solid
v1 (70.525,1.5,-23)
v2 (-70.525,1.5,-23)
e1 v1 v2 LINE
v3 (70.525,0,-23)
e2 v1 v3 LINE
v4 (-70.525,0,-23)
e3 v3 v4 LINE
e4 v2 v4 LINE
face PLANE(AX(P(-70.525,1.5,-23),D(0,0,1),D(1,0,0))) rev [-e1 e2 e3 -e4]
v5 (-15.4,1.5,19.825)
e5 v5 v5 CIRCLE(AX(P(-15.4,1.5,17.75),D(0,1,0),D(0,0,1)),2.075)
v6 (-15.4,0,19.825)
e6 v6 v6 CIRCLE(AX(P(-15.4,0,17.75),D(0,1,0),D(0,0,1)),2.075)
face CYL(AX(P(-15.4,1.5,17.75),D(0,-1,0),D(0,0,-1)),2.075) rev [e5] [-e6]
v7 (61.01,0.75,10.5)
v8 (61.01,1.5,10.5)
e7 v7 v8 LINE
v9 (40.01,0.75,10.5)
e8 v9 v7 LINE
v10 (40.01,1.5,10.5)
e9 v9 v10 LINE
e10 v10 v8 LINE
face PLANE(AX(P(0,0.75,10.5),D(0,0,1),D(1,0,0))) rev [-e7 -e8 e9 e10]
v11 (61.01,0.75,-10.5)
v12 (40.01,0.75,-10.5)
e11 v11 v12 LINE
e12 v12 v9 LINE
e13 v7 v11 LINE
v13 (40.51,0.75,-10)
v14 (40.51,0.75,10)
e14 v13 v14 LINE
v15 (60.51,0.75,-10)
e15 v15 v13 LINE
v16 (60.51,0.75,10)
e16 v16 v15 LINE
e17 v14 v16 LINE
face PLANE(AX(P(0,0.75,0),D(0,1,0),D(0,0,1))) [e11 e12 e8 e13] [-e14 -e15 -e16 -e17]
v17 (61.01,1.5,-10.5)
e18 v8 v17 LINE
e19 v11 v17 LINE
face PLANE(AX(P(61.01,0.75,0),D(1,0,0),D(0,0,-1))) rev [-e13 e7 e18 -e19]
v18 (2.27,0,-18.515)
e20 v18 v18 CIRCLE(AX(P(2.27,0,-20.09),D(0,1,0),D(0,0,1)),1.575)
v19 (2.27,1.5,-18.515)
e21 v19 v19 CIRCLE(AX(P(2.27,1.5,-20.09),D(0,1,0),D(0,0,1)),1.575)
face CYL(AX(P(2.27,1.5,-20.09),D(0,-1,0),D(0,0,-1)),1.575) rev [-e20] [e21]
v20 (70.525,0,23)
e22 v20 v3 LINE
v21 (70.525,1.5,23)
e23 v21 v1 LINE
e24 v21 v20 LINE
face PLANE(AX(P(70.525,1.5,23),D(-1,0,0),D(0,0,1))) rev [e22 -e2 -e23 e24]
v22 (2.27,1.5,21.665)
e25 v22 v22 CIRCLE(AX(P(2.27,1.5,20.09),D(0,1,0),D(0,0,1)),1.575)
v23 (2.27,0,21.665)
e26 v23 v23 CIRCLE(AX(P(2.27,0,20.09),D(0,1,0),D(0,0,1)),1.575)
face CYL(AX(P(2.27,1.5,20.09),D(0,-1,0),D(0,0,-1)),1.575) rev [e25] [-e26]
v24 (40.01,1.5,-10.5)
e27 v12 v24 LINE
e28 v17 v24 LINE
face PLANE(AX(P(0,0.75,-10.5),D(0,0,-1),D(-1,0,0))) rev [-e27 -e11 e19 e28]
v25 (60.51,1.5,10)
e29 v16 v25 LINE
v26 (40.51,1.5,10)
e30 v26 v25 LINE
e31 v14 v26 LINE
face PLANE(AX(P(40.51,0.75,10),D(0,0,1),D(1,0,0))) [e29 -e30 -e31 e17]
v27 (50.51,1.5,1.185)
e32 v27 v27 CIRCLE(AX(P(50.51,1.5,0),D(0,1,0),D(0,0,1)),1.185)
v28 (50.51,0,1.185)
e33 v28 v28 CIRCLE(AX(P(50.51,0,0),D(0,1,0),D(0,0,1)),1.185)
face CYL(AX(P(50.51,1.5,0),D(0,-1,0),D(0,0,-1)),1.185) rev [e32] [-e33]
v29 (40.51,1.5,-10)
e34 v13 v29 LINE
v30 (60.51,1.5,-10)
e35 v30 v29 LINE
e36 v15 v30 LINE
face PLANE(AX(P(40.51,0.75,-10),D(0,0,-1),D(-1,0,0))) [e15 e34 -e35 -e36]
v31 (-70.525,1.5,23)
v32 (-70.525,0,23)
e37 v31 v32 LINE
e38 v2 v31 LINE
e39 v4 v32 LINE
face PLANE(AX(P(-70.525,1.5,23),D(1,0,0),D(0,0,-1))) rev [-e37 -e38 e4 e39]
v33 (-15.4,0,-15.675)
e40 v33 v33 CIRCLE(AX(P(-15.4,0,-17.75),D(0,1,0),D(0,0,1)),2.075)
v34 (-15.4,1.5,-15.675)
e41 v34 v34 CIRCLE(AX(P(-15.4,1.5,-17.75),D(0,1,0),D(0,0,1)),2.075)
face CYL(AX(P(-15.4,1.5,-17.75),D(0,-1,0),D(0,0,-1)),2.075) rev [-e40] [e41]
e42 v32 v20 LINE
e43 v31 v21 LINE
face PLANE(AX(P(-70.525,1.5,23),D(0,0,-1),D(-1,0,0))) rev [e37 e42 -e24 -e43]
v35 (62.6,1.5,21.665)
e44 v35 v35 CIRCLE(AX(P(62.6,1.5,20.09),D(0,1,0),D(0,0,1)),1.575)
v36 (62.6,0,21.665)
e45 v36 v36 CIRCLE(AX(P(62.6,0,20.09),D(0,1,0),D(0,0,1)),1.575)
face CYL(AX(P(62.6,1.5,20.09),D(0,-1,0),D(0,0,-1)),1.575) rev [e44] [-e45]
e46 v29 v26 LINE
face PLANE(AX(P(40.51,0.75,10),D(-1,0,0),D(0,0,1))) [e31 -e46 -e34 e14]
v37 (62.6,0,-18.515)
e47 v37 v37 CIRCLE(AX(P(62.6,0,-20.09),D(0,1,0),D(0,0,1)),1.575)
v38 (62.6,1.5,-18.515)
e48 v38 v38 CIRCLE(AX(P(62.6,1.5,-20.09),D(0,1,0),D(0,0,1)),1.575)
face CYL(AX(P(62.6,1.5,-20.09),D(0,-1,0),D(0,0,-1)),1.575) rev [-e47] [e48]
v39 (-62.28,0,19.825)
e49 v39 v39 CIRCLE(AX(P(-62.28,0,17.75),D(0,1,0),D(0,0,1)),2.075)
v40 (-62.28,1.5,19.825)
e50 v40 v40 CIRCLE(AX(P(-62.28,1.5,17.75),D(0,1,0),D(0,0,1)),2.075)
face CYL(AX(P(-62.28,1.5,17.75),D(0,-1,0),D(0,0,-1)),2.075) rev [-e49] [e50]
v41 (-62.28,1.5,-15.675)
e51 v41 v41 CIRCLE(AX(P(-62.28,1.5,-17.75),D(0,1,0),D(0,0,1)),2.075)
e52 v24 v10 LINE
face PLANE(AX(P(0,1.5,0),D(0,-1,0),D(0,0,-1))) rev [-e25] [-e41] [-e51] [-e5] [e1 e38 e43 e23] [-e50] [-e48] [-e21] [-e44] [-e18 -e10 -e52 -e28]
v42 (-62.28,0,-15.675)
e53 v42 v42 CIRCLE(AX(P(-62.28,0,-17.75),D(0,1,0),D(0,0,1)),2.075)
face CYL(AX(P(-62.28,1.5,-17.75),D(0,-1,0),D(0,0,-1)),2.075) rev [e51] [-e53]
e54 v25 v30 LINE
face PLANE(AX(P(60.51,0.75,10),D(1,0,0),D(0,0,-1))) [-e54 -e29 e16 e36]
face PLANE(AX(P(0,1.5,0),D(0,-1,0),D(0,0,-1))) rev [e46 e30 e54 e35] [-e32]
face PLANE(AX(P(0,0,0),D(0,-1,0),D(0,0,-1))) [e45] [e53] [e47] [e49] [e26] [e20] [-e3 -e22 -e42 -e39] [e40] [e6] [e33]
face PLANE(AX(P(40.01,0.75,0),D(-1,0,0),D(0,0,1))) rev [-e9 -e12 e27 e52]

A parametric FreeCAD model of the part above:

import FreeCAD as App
import Part
import Sketcher
Q = App.Units.Quantity

doc = App.newDocument("Part")
body = doc.addObject("PartDesign::Body", "Body")

# Sketch on XZ plane
sketch1 = doc.addObject("Sketcher::SketchObject", "Sketch")
body.addObject(sketch1)
sketch1.AttachmentSupport = (doc.XZ_Plane, [""])
sketch1.MapMode = "FlatFace"
sketch1.addGeometry([
    Part.LineSegment(App.Vector(-70.5, -23, 0), App.Vector(-70.5, 23, 0)),  # 0
    Part.LineSegment(App.Vector(-70.5, 23, 0), App.Vector(70.5, 23, 0)),  # 1
    Part.LineSegment(App.Vector(70.5, 23, 0), App.Vector(70.5, -23, 0)),  # 2
    Part.LineSegment(App.Vector(70.5, -23, 0), App.Vector(-70.5, -23, 0)),  # 3
    Part.Circle(App.Vector(-62.3, 17.8, 0), App.Vector(0, 0, 1), 2.1),  # 4
    Part.Circle(App.Vector(-15.4, 17.8, 0), App.Vector(0, 0, 1), 2.1),  # 5
    Part.Circle(App.Vector(2.3, 20.1, 0), App.Vector(0, 0, 1), 1.6),  # 6
    Part.Circle(App.Vector(62.6, 20.1, 0), App.Vector(0, 0, 1), 1.6),  # 7
    Part.Circle(App.Vector(50.5, 0, 0), App.Vector(0, 0, 1), 1.2),  # 8
    Part.Circle(App.Vector(-62.3, -17.8, 0), App.Vector(0, 0, 1), 2.1),  # 9
    Part.Circle(App.Vector(-15.4, -17.8, 0), App.Vector(0, 0, 1), 2.1),  # 10
    Part.Circle(App.Vector(2.3, -20.1, 0), App.Vector(0, 0, 1), 1.6),  # 11
    Part.Circle(App.Vector(62.6, -20.1, 0), App.Vector(0, 0, 1), 1.6),  # 12
], False)
sketch1.addConstraint([
    Sketcher.Constraint("Coincident", 0, 2, 1, 1),
    Sketcher.Constraint("Coincident", 1, 2, 2, 1),
    Sketcher.Constraint("Coincident", 2, 2, 3, 1),
    Sketcher.Constraint("Coincident", 3, 2, 0, 1),
    Sketcher.Constraint("Vertical", 0),
    Sketcher.Constraint("Horizontal", 1),
    Sketcher.Constraint("Vertical", 2),
    Sketcher.Constraint("Horizontal", 3),
    Sketcher.Constraint("Equal", 4, 5),
    Sketcher.Constraint("Equal", 6, 7),
    Sketcher.Constraint("Equal", 5, 9),
    Sketcher.Constraint("Equal", 9, 10),
    Sketcher.Constraint("Equal", 7, 11),
    Sketcher.Constraint("Equal", 11, 12),
    Sketcher.Constraint("Symmetric", 0, 2, 2, 2, -1, 1),
    Sketcher.Constraint("Symmetric", 4, 3, 9, 3, -1),
    Sketcher.Constraint("Symmetric", 5, 3, 10, 3, -1),
    Sketcher.Constraint("Symmetric", 6, 3, 11, 3, -1),
    Sketcher.Constraint("Symmetric", 7, 3, 12, 3, -1),
    Sketcher.Constraint("PointOnObject", 8, 3, -1),
    Sketcher.Constraint("Horizontal", 4, 3, 5, 3),
    Sketcher.Constraint("Horizontal", 6, 3, 7, 3),
    Sketcher.Constraint("Diameter", 4, Q("4.15 mm")),
    Sketcher.Constraint("Diameter", 6, Q("3.15 mm")),
    Sketcher.Constraint("Diameter", 8, Q("2.37 mm")),
    Sketcher.Constraint("DistanceY", 0, 1, 0, 2, Q("46 mm")),
    Sketcher.Constraint("DistanceX", 5, 3, 7, 3, Q("78 mm")),
    Sketcher.Constraint("DistanceX", 1, 1, 1, 2, Q("141.05 mm")),
    Sketcher.Constraint("DistanceX", 5, 3, -1, 1, Q("15.4 mm")),
    Sketcher.Constraint("DistanceY", 9, 3, 4, 3, Q("35.5 mm")),
    Sketcher.Constraint("DistanceX", 4, 3, -1, 1, Q("62.28 mm")),
    Sketcher.Constraint("DistanceX", -1, 1, 6, 3, Q("2.27 mm")),
    Sketcher.Constraint("DistanceY", -1, 1, 6, 3, Q("20.09 mm")),
    Sketcher.Constraint("DistanceX", -1, 1, 8, 3, Q("50.51 mm")),
])
pad1 = doc.addObject("PartDesign::Pad", "Pad")
body.addObject(pad1)
pad1.Profile = sketch1
pad1.Length = 1.5
pad1.Reversed = True

# Sketch on XZ plane
sketch2 = doc.addObject("Sketcher::SketchObject", "Sketch001")
body.addObject(sketch2)
sketch2.AttachmentSupport = (doc.XZ_Plane, [""])
sketch2.MapMode = "FlatFace"
sketch2.AttachmentOffset = App.Placement(App.Vector(0, 0, -1.5), App.Rotation())
sketch2.addGeometry([
    Part.LineSegment(App.Vector(40, -10, 0), App.Vector(40, 10, 0)),  # 0
    Part.LineSegment(App.Vector(40, 10, 0), App.Vector(61, 10, 0)),  # 1
    Part.LineSegment(App.Vector(61, 10, 0), App.Vector(61, -10, 0)),  # 2
    Part.LineSegment(App.Vector(61, -10, 0), App.Vector(40, -10, 0)),  # 3
    Part.LineSegment(App.Vector(61, 10, 0), App.Vector(41, 10, 0)),  # 4
    Part.LineSegment(App.Vector(41, 10, 0), App.Vector(41, -10, 0)),  # 5
    Part.LineSegment(App.Vector(41, -10, 0), App.Vector(61, -10, 0)),  # 6
    Part.LineSegment(App.Vector(61, -10, 0), App.Vector(61, 10, 0)),  # 7
], False)
sketch2.addConstraint([
    Sketcher.Constraint("Coincident", 0, 2, 1, 1),
    Sketcher.Constraint("Coincident", 1, 2, 2, 1),
    Sketcher.Constraint("Coincident", 2, 2, 3, 1),
    Sketcher.Constraint("Coincident", 3, 2, 0, 1),
    Sketcher.Constraint("Coincident", 4, 2, 5, 1),
    Sketcher.Constraint("Coincident", 5, 2, 6, 1),
    Sketcher.Constraint("Coincident", 6, 2, 7, 1),
    Sketcher.Constraint("Coincident", 7, 2, 4, 1),
    Sketcher.Constraint("Vertical", 0),
    Sketcher.Constraint("Horizontal", 1),
    Sketcher.Constraint("Vertical", 2),
    Sketcher.Constraint("Horizontal", 3),
    Sketcher.Constraint("Horizontal", 4),
    Sketcher.Constraint("Vertical", 5),
    Sketcher.Constraint("Horizontal", 6),
    Sketcher.Constraint("Vertical", 7),
    Sketcher.Constraint("Equal", 3, 0),
    Sketcher.Constraint("Equal", 6, 5),
    Sketcher.Constraint("DistanceX", 1, 1, 1, 2, Q("21 mm")),
    Sketcher.Constraint("DistanceX", 4, 2, 4, 1, Q("20 mm")),
    Sketcher.Constraint("DistanceY", -1, 1, 4, 2, Q("10 mm")),
    Sketcher.Constraint("DistanceY", -1, 1, 0, 2, Q("10.5 mm")),
    Sketcher.Constraint("DistanceX", 0, 2, 4, 2, Q("0.5 mm")),
    Sketcher.Constraint("DistanceX", -1, 1, 0, 2, Q("40.01 mm")),
])
pocket1 = doc.addObject("PartDesign::Pocket", "Pocket")
body.addObject(pocket1)
pocket1.Profile = sketch2
pocket1.Length = 0.75
pocket1.Reversed = True

doc.recompute()
